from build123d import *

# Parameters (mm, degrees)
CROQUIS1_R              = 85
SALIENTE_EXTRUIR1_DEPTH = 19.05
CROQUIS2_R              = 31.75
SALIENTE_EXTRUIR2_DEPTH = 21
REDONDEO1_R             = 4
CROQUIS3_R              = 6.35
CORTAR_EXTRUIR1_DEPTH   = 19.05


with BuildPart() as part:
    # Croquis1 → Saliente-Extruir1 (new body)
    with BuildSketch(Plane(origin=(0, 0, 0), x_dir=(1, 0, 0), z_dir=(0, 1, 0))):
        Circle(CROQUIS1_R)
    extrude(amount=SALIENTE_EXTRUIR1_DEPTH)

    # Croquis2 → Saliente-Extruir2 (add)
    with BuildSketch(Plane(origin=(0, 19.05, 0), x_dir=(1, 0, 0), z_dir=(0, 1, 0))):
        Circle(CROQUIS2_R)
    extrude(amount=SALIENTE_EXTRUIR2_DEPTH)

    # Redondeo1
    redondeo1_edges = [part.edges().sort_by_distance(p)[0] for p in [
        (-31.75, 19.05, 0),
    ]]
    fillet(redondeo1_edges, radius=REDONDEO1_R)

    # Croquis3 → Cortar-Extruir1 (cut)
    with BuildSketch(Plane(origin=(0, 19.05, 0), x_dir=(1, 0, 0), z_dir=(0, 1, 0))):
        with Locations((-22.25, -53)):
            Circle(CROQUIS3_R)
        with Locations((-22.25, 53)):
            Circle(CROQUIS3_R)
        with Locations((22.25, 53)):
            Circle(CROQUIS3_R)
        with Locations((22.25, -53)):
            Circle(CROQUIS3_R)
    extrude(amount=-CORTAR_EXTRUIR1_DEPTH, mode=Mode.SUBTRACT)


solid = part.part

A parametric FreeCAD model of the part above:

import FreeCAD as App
import Part
import Sketcher

V = App.Vector


def edges_at(feature, points):
    """Names of the edges that pass closest to the given points."""
    edges = feature.Shape.Edges
    near = lambda p: min(range(len(edges)), key=lambda i: edges[i].distToShape(Part.Vertex(*p))[0])
    return sorted({f"Edge{near(p) + 1}" for p in points})

doc = App.newDocument("Part")
body = doc.addObject("PartDesign::Body", "Body")

sketch1 = body.newObject("Sketcher::SketchObject", "Sketch")
sketch1.AttachmentSupport = (doc.getObject("XZ_Plane"), [""])
sketch1.MapMode = "FlatFace"
sketch1.addGeometry(Part.Circle(V(0, 0, 0), V(0, 0, 1), 85), False)
sketch1.addConstraint([
    Sketcher.Constraint("Coincident", 0, 3, -1, 1),
    Sketcher.Constraint("Diameter", 0, 170.0),
])
pad1 = body.newObject("PartDesign::Pad", "Pad")
pad1.Profile = sketch1
pad1.Length = 19.05
pad1.Reversed = True

sketch2 = body.newObject("Sketcher::SketchObject", "Sketch001")
sketch2.AttachmentSupport = (doc.getObject("XZ_Plane"), [""])
sketch2.MapMode = "FlatFace"
sketch2.AttachmentOffset = App.Placement(V(0, 0, -19.05), App.Rotation())
sketch2.addGeometry(Part.Circle(V(0, 0, 0), V(0, 0, 1), 32), False)
sketch2.addConstraint([
    Sketcher.Constraint("Coincident", 0, 3, -1, 1),
    Sketcher.Constraint("Diameter", 0, 63.5),
])
pad2 = body.newObject("PartDesign::Pad", "Pad001")
pad2.Profile = sketch2
pad2.Length = 21
pad2.Reversed = True
doc.recompute()

fillet = body.newObject("PartDesign::Fillet", "Fillet")
fillet.Base = (pad2, edges_at(pad2, [(-31.75, 19.05, 0)]))
fillet.Radius = 4

sketch3 = body.newObject("Sketcher::SketchObject", "Sketch002")
sketch3.AttachmentSupport = (doc.getObject("XZ_Plane"), [""])
sketch3.MapMode = "FlatFace"
sketch3.AttachmentOffset = App.Placement(V(0, 0, -19.05), App.Rotation())
sketch3.addGeometry([
    Part.Circle(V(-22, 53, 0), V(0, 0, 1), 6),
    Part.Circle(V(-22, -53, 0), V(0, 0, 1), 6),
    Part.Circle(V(22, -53, 0), V(0, 0, 1), 6),
    Part.Circle(V(22, 53, 0), V(0, 0, 1), 6),
], False)
sketch3.addConstraint([
    Sketcher.Constraint("Equal", 0, 1),
    Sketcher.Constraint("Equal", 1, 2),
    Sketcher.Constraint("Equal", 2, 3),
    Sketcher.Constraint("Symmetric", 0, 3, 2, 3, -1, 1),
    Sketcher.Constraint("Symmetric", 1, 3, 3, 3, -1, 1),
    Sketcher.Constraint("Symmetric", 1, 3, 2, 3, -2),
    Sketcher.Constraint("Diameter", 0, 12.7),
    Sketcher.Constraint("DistanceY", -1, 1, 0, 3, 53.0),
    Sketcher.Constraint("DistanceX", 1, 3, 2, 3, 44.5),
])
pocket1 = body.newObject("PartDesign::Pocket", "Pocket")
pocket1.Profile = sketch3
pocket1.Length = 19.05
pocket1.Reversed = True

doc.recompute()
